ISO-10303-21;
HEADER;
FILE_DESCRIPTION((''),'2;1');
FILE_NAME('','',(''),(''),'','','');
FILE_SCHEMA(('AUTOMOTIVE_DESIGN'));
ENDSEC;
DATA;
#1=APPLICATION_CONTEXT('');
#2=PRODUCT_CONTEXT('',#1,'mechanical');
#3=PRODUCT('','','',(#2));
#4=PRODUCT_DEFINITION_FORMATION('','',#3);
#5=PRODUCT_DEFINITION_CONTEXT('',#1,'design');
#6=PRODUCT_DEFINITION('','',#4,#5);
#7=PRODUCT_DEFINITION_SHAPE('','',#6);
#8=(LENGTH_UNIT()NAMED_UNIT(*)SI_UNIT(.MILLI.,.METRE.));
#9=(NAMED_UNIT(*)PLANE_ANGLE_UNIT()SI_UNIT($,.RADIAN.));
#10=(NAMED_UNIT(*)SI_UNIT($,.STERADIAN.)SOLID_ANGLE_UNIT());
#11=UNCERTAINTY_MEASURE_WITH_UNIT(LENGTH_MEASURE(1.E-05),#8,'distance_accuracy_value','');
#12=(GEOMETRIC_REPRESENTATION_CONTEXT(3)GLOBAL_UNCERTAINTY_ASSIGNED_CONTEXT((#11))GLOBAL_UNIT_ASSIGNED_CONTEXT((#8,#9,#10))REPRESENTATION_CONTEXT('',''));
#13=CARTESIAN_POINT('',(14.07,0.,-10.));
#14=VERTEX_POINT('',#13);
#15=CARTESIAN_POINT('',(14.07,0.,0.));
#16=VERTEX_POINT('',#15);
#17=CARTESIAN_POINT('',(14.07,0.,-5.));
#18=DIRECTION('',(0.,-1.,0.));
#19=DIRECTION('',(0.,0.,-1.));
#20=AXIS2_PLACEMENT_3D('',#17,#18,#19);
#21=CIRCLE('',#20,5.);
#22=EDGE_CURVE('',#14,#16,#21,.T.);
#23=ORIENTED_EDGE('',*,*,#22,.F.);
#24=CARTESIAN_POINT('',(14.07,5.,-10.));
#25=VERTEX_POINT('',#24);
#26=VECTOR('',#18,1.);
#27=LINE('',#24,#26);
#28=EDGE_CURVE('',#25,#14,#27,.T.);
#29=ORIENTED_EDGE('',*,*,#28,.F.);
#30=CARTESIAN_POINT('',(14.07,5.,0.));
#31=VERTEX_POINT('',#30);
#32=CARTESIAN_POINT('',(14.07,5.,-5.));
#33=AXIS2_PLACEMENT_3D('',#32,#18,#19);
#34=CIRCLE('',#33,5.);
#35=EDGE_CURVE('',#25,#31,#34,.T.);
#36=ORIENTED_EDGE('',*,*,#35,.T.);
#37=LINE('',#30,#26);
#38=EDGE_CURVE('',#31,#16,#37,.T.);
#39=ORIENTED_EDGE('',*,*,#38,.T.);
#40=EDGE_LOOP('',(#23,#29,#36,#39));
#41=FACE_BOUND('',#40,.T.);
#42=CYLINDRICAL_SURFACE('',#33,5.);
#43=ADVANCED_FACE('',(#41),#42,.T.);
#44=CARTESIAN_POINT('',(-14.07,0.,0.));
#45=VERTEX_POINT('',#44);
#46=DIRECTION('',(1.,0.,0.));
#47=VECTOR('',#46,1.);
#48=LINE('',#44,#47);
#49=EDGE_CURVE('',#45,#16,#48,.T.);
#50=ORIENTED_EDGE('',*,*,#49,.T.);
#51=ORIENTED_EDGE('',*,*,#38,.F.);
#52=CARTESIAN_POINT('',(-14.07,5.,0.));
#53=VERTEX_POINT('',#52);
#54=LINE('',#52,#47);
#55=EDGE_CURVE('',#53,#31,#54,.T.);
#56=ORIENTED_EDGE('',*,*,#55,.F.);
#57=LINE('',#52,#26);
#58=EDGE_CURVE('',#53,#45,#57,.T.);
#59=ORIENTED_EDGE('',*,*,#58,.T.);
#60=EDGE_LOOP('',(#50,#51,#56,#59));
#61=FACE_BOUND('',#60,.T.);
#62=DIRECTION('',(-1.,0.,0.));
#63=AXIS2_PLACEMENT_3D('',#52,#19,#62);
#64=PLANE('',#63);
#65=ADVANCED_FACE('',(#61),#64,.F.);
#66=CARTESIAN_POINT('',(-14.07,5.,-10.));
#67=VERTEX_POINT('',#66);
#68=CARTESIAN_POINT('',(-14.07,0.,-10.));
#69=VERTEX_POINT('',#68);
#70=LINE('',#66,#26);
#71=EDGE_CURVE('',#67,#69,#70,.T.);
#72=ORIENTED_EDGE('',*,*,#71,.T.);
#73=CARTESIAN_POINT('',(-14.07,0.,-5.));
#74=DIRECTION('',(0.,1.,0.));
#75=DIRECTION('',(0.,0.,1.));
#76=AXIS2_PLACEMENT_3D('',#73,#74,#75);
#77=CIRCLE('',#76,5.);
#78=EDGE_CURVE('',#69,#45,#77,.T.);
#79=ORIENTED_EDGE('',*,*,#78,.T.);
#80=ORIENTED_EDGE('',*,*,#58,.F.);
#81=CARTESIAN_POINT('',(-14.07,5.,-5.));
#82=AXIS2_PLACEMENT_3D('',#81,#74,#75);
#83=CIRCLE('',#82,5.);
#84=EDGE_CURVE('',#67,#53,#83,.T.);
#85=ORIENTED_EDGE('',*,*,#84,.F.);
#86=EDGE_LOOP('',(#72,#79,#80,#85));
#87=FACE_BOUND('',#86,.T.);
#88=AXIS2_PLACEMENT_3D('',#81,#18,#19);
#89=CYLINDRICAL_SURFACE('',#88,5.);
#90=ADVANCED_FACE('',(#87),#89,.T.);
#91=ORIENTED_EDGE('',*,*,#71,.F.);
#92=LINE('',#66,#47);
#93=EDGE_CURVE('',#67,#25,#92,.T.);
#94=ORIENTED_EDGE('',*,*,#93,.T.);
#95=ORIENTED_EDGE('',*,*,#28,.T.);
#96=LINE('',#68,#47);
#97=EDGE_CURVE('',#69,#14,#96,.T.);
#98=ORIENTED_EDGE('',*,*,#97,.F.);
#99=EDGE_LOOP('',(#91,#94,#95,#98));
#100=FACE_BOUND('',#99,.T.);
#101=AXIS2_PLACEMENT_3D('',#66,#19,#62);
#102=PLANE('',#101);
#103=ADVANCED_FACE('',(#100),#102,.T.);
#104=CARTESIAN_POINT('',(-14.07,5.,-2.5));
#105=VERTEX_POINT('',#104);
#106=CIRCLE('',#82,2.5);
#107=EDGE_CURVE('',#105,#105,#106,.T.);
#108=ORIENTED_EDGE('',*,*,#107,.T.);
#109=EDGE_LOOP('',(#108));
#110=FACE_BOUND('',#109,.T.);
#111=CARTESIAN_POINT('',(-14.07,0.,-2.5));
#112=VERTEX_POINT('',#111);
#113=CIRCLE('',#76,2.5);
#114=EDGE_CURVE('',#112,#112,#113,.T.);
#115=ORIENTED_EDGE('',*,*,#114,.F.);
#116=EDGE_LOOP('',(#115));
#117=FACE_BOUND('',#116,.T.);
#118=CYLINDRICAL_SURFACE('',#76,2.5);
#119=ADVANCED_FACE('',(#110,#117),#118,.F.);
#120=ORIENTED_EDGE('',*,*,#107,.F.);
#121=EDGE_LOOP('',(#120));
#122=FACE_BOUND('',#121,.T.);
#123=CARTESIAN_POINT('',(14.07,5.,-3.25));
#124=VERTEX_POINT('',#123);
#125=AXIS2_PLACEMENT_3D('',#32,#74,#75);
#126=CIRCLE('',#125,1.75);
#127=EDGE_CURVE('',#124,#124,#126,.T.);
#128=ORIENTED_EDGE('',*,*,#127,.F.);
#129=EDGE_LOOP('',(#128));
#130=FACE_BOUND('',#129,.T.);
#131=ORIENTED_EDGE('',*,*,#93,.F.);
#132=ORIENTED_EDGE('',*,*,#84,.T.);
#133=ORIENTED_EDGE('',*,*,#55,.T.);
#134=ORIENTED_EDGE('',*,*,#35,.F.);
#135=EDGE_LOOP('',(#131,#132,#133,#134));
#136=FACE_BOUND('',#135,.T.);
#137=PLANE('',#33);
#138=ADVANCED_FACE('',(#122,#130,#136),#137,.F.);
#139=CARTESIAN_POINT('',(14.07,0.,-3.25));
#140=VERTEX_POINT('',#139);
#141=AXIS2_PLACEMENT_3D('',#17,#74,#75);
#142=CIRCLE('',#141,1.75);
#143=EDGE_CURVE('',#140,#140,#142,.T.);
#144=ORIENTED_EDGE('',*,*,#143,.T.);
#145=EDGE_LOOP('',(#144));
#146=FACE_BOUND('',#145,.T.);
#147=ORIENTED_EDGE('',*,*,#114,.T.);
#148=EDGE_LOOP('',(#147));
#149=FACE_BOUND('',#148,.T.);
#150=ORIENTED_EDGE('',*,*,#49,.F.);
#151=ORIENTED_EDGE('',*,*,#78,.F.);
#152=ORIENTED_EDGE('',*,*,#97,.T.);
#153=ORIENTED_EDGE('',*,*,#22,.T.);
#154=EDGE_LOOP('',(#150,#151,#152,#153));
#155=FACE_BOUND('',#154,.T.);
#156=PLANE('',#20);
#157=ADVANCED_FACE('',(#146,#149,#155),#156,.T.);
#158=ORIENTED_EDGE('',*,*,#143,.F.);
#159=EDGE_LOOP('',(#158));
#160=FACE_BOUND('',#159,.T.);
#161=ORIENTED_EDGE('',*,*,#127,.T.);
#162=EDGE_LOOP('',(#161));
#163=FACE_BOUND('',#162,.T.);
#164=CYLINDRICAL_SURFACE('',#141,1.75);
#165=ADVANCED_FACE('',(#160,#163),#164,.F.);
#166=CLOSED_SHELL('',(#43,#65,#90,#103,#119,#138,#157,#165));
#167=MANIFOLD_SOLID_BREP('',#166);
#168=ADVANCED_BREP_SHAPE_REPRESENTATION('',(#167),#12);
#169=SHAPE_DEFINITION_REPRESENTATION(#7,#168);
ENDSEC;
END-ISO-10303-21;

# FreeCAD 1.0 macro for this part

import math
import FreeCAD as App
import Part
import Sketcher
from FreeCAD import Vector

doc = App.newDocument("Part")
body = doc.addObject("PartDesign::Body", "Body")

sketch1 = body.newObject("Sketcher::SketchObject", "Sketch")
sketch1.AttachmentSupport = (doc.getObject("XZ_Plane"), [""])
sketch1.MapMode = "FlatFace"
sketch1.addGeometry(Part.LineSegment(Vector(-14, 0, 0), Vector(14, 0, 0)), False)
sketch1.addGeometry(Part.ArcOfCircle(Part.Circle(Vector(14, -5, 0), Vector(0, 0, 1), 5), math.radians(-90), math.radians(90)), False)
sketch1.addGeometry(Part.LineSegment(Vector(14, -10, 0), Vector(-14, -10, 0)), False)
sketch1.addGeometry(Part.ArcOfCircle(Part.Circle(Vector(-14, -5, 0), Vector(0, 0, 1), 5), math.radians(90), math.radians(270)), False)
sketch1.addConstraint(Sketcher.Constraint("Tangent", 0, 2, 1, 2))
sketch1.addConstraint(Sketcher.Constraint("Tangent", 1, 1, 2, 1))
sketch1.addConstraint(Sketcher.Constraint("Tangent", 2, 2, 3, 2))
sketch1.addConstraint(Sketcher.Constraint("Tangent", 3, 1, 0, 1))
sketch1.addConstraint(Sketcher.Constraint("Horizontal", 0))
sketch1.addConstraint(Sketcher.Constraint("Horizontal", 2))
sketch1.addConstraint(Sketcher.Constraint("Symmetric", 0, 2, 3, 1, -1, 1))
sketch1.addConstraint(Sketcher.Constraint("Radius", 1, 5.0))
sketch1.addConstraint(Sketcher.Constraint("DistanceX", 0, 1, 0, 2, 28.14))
pad1 = body.newObject("PartDesign::Pad", "Pad")
pad1.Profile = sketch1
pad1.Length = 5
pad1.Reversed = True

sketch2 = body.newObject("Sketcher::SketchObject", "Sketch001")
sketch2.AttachmentSupport = (doc.getObject("XZ_Plane"), [""])
sketch2.MapMode = "FlatFace"
sketch2.AttachmentOffset = App.Placement(Vector(0, 0, -5), App.Rotation())
sketch2.addGeometry(Part.Circle(Vector(-14.1, -5, 0), Vector(0, 0, 1), 2.5), False)
sketch2.addGeometry(Part.Circle(Vector(14.1, -5, 0), Vector(0, 0, 1), 1.8), False)
sketch2.addConstraint(Sketcher.Constraint("Symmetric", 0, 3, 1, 3, -2))
sketch2.addConstraint(Sketcher.Constraint("Diameter", 0, 5.0))
sketch2.addConstraint(Sketcher.Constraint("Diameter", 1, 3.5))
sketch2.addConstraint(Sketcher.Constraint("DistanceY", 0, 3, -1, 1, 5.0))
sketch2.addConstraint(Sketcher.Constraint("DistanceX", 0, 3, -1, 1, 14.07))
pocket1 = body.newObject("PartDesign::Pocket", "Pocket")
pocket1.Profile = sketch2
pocket1.Length = 5
pocket1.Reversed = True

doc.recompute()
